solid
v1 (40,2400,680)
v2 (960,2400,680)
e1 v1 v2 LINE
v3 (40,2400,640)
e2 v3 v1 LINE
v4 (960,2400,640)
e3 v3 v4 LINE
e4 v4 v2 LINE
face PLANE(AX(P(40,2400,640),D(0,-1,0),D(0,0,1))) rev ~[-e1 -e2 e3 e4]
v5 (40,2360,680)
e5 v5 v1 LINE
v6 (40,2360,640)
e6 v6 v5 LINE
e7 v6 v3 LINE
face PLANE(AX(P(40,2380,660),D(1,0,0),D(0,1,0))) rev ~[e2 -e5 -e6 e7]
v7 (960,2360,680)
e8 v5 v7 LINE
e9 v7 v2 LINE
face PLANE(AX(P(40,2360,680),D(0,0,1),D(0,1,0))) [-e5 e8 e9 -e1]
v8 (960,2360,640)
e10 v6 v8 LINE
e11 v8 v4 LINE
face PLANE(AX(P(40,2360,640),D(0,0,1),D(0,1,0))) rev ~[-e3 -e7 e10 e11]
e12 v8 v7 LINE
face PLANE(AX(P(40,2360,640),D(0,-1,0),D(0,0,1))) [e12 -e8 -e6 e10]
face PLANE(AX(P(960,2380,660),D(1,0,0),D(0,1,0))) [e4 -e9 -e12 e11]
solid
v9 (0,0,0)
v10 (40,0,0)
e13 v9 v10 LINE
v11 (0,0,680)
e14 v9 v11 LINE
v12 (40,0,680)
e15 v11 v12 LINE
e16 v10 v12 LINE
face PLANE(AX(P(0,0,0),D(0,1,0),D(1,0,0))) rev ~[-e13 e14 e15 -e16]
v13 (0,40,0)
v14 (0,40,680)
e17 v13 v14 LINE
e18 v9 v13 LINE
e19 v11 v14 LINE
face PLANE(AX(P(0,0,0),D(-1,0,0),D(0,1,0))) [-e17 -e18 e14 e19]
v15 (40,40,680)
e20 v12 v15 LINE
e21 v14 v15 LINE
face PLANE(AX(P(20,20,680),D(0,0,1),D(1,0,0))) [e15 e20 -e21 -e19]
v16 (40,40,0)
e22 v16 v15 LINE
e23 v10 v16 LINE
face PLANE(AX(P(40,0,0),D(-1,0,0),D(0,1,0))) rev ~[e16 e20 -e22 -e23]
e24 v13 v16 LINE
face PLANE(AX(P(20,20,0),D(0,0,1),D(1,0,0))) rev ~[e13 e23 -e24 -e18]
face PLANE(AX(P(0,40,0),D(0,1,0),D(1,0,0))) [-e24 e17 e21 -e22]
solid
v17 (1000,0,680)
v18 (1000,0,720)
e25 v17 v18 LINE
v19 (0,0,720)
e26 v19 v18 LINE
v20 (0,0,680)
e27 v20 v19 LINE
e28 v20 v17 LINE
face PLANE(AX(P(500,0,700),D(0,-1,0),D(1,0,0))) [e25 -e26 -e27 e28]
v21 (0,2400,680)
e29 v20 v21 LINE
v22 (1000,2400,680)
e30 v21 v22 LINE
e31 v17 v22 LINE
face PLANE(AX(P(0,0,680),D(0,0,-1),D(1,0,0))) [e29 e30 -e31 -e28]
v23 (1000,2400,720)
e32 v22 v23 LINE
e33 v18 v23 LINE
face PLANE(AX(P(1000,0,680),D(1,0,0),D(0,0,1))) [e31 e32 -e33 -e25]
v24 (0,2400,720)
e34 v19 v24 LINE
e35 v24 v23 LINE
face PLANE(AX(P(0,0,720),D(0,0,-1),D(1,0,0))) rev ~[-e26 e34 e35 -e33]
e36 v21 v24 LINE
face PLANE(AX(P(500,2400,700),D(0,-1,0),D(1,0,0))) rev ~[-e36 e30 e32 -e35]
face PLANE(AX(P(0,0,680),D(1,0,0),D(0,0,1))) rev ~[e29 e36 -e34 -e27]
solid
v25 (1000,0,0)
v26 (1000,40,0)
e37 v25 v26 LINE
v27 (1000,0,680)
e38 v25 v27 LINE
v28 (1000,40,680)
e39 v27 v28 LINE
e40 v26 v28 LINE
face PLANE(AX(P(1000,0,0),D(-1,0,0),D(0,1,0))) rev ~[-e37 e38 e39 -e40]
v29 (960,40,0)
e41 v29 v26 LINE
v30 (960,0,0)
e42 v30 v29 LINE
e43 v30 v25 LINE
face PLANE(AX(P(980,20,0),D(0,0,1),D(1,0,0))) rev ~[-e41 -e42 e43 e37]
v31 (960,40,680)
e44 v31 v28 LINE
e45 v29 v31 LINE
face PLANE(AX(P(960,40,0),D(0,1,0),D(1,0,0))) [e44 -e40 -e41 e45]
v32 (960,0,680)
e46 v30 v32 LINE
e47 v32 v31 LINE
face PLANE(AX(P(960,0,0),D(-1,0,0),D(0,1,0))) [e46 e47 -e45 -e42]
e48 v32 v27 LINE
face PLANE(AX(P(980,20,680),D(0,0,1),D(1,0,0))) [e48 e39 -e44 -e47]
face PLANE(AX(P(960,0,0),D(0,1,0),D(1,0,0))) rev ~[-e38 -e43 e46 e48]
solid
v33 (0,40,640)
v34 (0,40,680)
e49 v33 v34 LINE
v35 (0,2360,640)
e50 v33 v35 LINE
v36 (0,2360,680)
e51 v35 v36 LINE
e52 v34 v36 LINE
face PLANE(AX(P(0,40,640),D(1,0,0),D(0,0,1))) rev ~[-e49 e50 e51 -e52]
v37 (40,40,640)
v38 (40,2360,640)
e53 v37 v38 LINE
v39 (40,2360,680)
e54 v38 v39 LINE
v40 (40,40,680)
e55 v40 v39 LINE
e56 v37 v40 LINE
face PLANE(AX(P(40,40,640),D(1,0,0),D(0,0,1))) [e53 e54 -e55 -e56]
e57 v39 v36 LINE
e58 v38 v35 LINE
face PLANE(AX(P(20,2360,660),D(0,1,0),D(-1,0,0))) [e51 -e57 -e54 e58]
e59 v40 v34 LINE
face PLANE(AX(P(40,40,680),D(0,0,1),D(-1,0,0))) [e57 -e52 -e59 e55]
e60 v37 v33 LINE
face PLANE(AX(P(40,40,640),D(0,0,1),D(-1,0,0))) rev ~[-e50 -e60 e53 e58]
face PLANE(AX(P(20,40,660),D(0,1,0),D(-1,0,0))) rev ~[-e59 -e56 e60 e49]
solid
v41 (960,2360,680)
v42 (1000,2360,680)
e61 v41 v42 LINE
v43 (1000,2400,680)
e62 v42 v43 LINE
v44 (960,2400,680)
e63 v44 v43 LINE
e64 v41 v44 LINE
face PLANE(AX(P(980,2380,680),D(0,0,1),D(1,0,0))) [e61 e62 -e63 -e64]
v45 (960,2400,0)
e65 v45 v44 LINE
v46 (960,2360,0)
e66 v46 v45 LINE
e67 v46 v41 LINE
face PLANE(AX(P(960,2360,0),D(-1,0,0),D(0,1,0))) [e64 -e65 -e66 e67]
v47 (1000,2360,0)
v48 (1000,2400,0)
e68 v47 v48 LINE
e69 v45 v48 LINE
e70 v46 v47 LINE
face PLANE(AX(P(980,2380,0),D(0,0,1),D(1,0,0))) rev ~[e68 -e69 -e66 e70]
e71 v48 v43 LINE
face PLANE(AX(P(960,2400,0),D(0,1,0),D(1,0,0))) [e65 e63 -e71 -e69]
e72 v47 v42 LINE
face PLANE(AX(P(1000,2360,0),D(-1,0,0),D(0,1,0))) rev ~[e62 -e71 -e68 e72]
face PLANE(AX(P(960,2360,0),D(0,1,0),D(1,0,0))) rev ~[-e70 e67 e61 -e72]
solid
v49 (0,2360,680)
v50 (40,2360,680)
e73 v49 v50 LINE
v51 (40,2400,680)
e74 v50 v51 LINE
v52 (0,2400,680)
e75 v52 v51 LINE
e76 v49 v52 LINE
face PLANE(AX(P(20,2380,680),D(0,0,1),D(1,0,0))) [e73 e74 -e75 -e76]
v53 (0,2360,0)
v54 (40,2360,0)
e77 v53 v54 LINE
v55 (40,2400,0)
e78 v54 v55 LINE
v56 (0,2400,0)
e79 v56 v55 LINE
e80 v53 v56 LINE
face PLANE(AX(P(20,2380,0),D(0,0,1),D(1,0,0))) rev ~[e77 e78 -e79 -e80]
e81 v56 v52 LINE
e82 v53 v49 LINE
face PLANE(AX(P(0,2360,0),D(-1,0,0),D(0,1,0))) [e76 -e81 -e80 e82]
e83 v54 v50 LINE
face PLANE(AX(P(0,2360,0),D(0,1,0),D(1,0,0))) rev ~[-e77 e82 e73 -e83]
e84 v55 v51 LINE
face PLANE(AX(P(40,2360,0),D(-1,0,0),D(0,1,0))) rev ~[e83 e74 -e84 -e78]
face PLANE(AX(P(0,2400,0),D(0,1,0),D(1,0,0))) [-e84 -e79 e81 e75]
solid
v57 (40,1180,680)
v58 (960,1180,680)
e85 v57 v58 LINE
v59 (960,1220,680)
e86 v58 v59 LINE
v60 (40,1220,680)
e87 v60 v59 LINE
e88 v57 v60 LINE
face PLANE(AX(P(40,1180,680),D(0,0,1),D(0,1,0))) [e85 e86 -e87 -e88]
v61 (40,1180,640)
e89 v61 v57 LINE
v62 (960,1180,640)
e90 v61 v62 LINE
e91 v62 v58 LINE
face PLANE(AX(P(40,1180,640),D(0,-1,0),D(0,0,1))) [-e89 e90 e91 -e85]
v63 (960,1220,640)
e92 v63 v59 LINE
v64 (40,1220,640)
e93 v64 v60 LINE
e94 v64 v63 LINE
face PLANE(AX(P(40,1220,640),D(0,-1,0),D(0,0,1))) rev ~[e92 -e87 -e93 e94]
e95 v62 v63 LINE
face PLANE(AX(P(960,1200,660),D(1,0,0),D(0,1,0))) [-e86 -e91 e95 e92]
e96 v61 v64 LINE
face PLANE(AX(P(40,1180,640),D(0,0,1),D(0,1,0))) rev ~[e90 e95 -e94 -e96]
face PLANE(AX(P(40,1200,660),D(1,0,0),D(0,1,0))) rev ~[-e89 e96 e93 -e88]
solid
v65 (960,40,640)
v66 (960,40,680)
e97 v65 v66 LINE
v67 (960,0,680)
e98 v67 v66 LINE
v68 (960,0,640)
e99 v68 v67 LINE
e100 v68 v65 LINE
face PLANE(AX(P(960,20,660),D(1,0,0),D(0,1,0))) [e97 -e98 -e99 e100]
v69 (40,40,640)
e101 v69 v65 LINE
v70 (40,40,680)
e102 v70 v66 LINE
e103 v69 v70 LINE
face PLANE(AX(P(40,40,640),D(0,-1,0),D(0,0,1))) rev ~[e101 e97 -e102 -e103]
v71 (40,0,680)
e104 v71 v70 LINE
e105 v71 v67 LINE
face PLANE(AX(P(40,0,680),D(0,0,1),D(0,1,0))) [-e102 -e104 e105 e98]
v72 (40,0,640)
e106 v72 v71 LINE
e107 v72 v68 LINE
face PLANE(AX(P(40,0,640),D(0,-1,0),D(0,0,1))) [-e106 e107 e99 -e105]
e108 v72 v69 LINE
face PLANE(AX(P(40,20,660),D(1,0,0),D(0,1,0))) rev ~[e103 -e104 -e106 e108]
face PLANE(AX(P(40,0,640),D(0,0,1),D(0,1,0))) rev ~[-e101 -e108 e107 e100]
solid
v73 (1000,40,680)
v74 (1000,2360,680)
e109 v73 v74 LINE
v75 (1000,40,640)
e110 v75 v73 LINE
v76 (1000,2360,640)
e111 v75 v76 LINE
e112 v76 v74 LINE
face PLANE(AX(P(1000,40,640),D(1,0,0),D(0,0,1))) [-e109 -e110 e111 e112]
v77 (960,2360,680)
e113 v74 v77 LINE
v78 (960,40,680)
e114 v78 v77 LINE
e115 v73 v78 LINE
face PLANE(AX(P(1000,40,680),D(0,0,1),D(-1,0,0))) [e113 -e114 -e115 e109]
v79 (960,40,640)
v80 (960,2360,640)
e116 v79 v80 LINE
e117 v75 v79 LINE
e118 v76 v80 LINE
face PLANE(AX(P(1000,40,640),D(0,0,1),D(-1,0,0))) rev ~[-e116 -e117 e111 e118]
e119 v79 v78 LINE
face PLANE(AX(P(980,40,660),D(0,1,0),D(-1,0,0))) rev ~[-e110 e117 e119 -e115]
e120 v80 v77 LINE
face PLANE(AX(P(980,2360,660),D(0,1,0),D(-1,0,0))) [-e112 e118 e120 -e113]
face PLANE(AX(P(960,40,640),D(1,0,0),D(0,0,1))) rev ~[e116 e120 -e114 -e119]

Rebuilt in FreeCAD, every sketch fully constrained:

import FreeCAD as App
import Part
import Sketcher
from FreeCAD import Vector
Q = App.Units.Quantity


def add_polygon(sketch, points):
    """Adds a closed chain of lines whose ends are joined by coincident constraints."""
    first, n = sketch.GeometryCount, len(points)
    for a, b in zip(points, points[1:] + points[:1]):
        sketch.addGeometry(Part.LineSegment(App.Vector(*a, 0), App.Vector(*b, 0)), False)
    for i in range(n):
        sketch.addConstraint(Sketcher.Constraint("Coincident", first + i, 2, first + (i + 1) % n, 1))

doc = App.newDocument("Part")
body = doc.addObject("PartDesign::Body", "Body")
body.AllowCompound = True

sketch1 = body.newObject("Sketcher::SketchObject", "Sketch")
sketch1.AttachmentSupport = (doc.getObject("XY_Plane"), [""])
sketch1.MapMode = "FlatFace"
add_polygon(sketch1, [(0, 40), (0, 0), (40, 0), (40, 40)])
add_polygon(sketch1, [(960, 40), (960, 0), (1000, 0), (1000, 40)])
add_polygon(sketch1, [(0, 2400), (0, 2360), (40, 2360), (40, 2400)])
add_polygon(sketch1, [(960, 2400), (960, 2360), (1000, 2360), (1000, 2400)])
sketch1.addConstraint([
    Sketcher.Constraint("Vertical", 0),
    Sketcher.Constraint("Horizontal", 1),
    Sketcher.Constraint("Vertical", 2),
    Sketcher.Constraint("Horizontal", 3),
    Sketcher.Constraint("Vertical", 4),
    Sketcher.Constraint("Horizontal", 5),
    Sketcher.Constraint("Vertical", 6),
    Sketcher.Constraint("Horizontal", 7),
    Sketcher.Constraint("Vertical", 8),
    Sketcher.Constraint("Horizontal", 9),
    Sketcher.Constraint("Vertical", 10),
    Sketcher.Constraint("Horizontal", 11),
    Sketcher.Constraint("Vertical", 12),
    Sketcher.Constraint("Horizontal", 13),
    Sketcher.Constraint("Vertical", 14),
    Sketcher.Constraint("Horizontal", 15),
    Sketcher.Constraint("Coincident", 0, 2, -1, 1),
    Sketcher.Constraint("PointOnObject", 4, 2, -1),
    Sketcher.Constraint("PointOnObject", 8, 2, -2),
    Sketcher.Constraint("Horizontal", 3, 2, 6, 2),
    Sketcher.Constraint("Horizontal", 9, 2, 12, 2),
    Sketcher.Constraint("Horizontal", 11, 2, 14, 2),
    Sketcher.Constraint("Vertical", 2, 2, 9, 2),
    Sketcher.Constraint("Vertical", 7, 2, 12, 2),
    Sketcher.Constraint("Vertical", 6, 2, 13, 2),
    Sketcher.Constraint("Equal", 3, 5),
    Sketcher.Constraint("Equal", 15, 0),
    Sketcher.Constraint("Equal", 6, 8),
    Sketcher.Constraint("DistanceX", 1, 1, 1, 2, Q("40 mm")),
    Sketcher.Constraint("DistanceX", -1, 1, 4, 2, Q("960 mm")),
    Sketcher.Constraint("DistanceY", -1, 1, 8, 2, Q("2360 mm")),
])
pad1 = body.newObject("PartDesign::Pad", "Pad")
pad1.Profile = sketch1
pad1.Length = 680
body2 = doc.addObject("PartDesign::Body", "Body001")
body2.AllowCompound = True

sketch2 = body2.newObject("Sketcher::SketchObject", "Sketch001")
sketch2.AttachmentSupport = (doc.getObject("XZ_Plane001"), [""])
sketch2.MapMode = "FlatFace"
sketch2.AttachmentOffset = App.Placement(Vector(0, 0, -40), App.Rotation())
add_polygon(sketch2, [(40, 680), (40, 640), (0, 640), (0, 680)])
add_polygon(sketch2, [(1000, 680), (1000, 640), (960, 640), (960, 680)])
sketch2.addConstraint([
    Sketcher.Constraint("Vertical", 0),
    Sketcher.Constraint("Horizontal", 1),
    Sketcher.Constraint("Vertical", 2),
    Sketcher.Constraint("Horizontal", 3),
    Sketcher.Constraint("Vertical", 4),
    Sketcher.Constraint("Horizontal", 5),
    Sketcher.Constraint("Vertical", 6),
    Sketcher.Constraint("Horizontal", 7),
    Sketcher.Constraint("PointOnObject", 1, 2, -2),
    Sketcher.Constraint("Horizontal", 1, 2, 4, 2),
    Sketcher.Constraint("Horizontal", 3, 2, 6, 2),
    Sketcher.Constraint("Equal", 3, 5),
    Sketcher.Constraint("Equal", 7, 0),
    Sketcher.Constraint("DistanceX", 1, 2, 1, 1, Q("40 mm")),
    Sketcher.Constraint("DistanceY", -1, 1, 0, 2, Q("640 mm")),
    Sketcher.Constraint("DistanceX", -1, 1, 4, 2, Q("1000 mm")),
])
pad2 = body2.newObject("PartDesign::Pad", "Pad001")
pad2.Profile = sketch2
pad2.Length = 2320
pad2.Reversed = True
body3 = doc.addObject("PartDesign::Body", "Body002")
body3.AllowCompound = True

sketch3 = body3.newObject("Sketcher::SketchObject", "Sketch002")
sketch3.AttachmentSupport = (doc.getObject("YZ_Plane002"), [""])
sketch3.MapMode = "FlatFace"
sketch3.AttachmentOffset = App.Placement(Vector(0, 0, 40), App.Rotation())
add_polygon(sketch3, [(0, 680), (0, 640), (40, 640), (40, 680)])
add_polygon(sketch3, [(1180, 680), (1180, 640), (1220, 640), (1220, 680)])
add_polygon(sketch3, [(2360, 680), (2360, 640), (2400, 640), (2400, 680)])
sketch3.addConstraint([
    Sketcher.Constraint("Vertical", 0),
    Sketcher.Constraint("Horizontal", 1),
    Sketcher.Constraint("Vertical", 2),
    Sketcher.Constraint("Horizontal", 3),
    Sketcher.Constraint("Vertical", 4),
    Sketcher.Constraint("Horizontal", 5),
    Sketcher.Constraint("Vertical", 6),
    Sketcher.Constraint("Horizontal", 7),
    Sketcher.Constraint("Vertical", 8),
    Sketcher.Constraint("Horizontal", 9),
    Sketcher.Constraint("Vertical", 10),
    Sketcher.Constraint("Horizontal", 11),
    Sketcher.Constraint("PointOnObject", 0, 2, -2),
    Sketcher.Constraint("Horizontal", 1, 2, 4, 2),
    Sketcher.Constraint("Horizontal", 3, 2, 6, 2),
    Sketcher.Constraint("Horizontal", 5, 2, 8, 2),
    Sketcher.Constraint("Horizontal", 7, 2, 10, 2),
    Sketcher.Constraint("Equal", 3, 5),
    Sketcher.Constraint("Equal", 7, 9),
    Sketcher.Constraint("Equal", 11, 0),
    Sketcher.Constraint("DistanceX", 1, 1, 1, 2, Q("40 mm")),
    Sketcher.Constraint("DistanceY", -1, 1, 0, 2, Q("640 mm")),
    Sketcher.Constraint("DistanceX", -1, 1, 4, 2, Q("1180 mm")),
    Sketcher.Constraint("DistanceX", -1, 1, 8, 2, Q("2360 mm")),
])
pad3 = body3.newObject("PartDesign::Pad", "Pad002")
pad3.Profile = sketch3
pad3.Length = 920
body4 = doc.addObject("PartDesign::Body", "Body003")

sketch4 = body4.newObject("Sketcher::SketchObject", "Sketch003")
sketch4.AttachmentSupport = (doc.getObject("XZ_Plane003"), [""])
sketch4.MapMode = "FlatFace"
add_polygon(sketch4, [(0, 720), (0, 680), (1000, 680), (1000, 720)])
sketch4.addConstraint([
    Sketcher.Constraint("Vertical", 0),
    Sketcher.Constraint("Horizontal", 1),
    Sketcher.Constraint("Vertical", 2),
    Sketcher.Constraint("Horizontal", 3),
    Sketcher.Constraint("PointOnObject", 0, 2, -2),
    Sketcher.Constraint("DistanceX", 1, 1, 1, 2, Q("1000 mm")),
    Sketcher.Constraint("DistanceY", 0, 2, 0, 1, Q("40 mm")),
    Sketcher.Constraint("DistanceY", -1, 1, 0, 2, Q("680 mm")),
])
pad4 = body4.newObject("PartDesign::Pad", "Pad003")
pad4.Profile = sketch4
pad4.Length = 2400
pad4.Reversed = True

doc.recompute()
